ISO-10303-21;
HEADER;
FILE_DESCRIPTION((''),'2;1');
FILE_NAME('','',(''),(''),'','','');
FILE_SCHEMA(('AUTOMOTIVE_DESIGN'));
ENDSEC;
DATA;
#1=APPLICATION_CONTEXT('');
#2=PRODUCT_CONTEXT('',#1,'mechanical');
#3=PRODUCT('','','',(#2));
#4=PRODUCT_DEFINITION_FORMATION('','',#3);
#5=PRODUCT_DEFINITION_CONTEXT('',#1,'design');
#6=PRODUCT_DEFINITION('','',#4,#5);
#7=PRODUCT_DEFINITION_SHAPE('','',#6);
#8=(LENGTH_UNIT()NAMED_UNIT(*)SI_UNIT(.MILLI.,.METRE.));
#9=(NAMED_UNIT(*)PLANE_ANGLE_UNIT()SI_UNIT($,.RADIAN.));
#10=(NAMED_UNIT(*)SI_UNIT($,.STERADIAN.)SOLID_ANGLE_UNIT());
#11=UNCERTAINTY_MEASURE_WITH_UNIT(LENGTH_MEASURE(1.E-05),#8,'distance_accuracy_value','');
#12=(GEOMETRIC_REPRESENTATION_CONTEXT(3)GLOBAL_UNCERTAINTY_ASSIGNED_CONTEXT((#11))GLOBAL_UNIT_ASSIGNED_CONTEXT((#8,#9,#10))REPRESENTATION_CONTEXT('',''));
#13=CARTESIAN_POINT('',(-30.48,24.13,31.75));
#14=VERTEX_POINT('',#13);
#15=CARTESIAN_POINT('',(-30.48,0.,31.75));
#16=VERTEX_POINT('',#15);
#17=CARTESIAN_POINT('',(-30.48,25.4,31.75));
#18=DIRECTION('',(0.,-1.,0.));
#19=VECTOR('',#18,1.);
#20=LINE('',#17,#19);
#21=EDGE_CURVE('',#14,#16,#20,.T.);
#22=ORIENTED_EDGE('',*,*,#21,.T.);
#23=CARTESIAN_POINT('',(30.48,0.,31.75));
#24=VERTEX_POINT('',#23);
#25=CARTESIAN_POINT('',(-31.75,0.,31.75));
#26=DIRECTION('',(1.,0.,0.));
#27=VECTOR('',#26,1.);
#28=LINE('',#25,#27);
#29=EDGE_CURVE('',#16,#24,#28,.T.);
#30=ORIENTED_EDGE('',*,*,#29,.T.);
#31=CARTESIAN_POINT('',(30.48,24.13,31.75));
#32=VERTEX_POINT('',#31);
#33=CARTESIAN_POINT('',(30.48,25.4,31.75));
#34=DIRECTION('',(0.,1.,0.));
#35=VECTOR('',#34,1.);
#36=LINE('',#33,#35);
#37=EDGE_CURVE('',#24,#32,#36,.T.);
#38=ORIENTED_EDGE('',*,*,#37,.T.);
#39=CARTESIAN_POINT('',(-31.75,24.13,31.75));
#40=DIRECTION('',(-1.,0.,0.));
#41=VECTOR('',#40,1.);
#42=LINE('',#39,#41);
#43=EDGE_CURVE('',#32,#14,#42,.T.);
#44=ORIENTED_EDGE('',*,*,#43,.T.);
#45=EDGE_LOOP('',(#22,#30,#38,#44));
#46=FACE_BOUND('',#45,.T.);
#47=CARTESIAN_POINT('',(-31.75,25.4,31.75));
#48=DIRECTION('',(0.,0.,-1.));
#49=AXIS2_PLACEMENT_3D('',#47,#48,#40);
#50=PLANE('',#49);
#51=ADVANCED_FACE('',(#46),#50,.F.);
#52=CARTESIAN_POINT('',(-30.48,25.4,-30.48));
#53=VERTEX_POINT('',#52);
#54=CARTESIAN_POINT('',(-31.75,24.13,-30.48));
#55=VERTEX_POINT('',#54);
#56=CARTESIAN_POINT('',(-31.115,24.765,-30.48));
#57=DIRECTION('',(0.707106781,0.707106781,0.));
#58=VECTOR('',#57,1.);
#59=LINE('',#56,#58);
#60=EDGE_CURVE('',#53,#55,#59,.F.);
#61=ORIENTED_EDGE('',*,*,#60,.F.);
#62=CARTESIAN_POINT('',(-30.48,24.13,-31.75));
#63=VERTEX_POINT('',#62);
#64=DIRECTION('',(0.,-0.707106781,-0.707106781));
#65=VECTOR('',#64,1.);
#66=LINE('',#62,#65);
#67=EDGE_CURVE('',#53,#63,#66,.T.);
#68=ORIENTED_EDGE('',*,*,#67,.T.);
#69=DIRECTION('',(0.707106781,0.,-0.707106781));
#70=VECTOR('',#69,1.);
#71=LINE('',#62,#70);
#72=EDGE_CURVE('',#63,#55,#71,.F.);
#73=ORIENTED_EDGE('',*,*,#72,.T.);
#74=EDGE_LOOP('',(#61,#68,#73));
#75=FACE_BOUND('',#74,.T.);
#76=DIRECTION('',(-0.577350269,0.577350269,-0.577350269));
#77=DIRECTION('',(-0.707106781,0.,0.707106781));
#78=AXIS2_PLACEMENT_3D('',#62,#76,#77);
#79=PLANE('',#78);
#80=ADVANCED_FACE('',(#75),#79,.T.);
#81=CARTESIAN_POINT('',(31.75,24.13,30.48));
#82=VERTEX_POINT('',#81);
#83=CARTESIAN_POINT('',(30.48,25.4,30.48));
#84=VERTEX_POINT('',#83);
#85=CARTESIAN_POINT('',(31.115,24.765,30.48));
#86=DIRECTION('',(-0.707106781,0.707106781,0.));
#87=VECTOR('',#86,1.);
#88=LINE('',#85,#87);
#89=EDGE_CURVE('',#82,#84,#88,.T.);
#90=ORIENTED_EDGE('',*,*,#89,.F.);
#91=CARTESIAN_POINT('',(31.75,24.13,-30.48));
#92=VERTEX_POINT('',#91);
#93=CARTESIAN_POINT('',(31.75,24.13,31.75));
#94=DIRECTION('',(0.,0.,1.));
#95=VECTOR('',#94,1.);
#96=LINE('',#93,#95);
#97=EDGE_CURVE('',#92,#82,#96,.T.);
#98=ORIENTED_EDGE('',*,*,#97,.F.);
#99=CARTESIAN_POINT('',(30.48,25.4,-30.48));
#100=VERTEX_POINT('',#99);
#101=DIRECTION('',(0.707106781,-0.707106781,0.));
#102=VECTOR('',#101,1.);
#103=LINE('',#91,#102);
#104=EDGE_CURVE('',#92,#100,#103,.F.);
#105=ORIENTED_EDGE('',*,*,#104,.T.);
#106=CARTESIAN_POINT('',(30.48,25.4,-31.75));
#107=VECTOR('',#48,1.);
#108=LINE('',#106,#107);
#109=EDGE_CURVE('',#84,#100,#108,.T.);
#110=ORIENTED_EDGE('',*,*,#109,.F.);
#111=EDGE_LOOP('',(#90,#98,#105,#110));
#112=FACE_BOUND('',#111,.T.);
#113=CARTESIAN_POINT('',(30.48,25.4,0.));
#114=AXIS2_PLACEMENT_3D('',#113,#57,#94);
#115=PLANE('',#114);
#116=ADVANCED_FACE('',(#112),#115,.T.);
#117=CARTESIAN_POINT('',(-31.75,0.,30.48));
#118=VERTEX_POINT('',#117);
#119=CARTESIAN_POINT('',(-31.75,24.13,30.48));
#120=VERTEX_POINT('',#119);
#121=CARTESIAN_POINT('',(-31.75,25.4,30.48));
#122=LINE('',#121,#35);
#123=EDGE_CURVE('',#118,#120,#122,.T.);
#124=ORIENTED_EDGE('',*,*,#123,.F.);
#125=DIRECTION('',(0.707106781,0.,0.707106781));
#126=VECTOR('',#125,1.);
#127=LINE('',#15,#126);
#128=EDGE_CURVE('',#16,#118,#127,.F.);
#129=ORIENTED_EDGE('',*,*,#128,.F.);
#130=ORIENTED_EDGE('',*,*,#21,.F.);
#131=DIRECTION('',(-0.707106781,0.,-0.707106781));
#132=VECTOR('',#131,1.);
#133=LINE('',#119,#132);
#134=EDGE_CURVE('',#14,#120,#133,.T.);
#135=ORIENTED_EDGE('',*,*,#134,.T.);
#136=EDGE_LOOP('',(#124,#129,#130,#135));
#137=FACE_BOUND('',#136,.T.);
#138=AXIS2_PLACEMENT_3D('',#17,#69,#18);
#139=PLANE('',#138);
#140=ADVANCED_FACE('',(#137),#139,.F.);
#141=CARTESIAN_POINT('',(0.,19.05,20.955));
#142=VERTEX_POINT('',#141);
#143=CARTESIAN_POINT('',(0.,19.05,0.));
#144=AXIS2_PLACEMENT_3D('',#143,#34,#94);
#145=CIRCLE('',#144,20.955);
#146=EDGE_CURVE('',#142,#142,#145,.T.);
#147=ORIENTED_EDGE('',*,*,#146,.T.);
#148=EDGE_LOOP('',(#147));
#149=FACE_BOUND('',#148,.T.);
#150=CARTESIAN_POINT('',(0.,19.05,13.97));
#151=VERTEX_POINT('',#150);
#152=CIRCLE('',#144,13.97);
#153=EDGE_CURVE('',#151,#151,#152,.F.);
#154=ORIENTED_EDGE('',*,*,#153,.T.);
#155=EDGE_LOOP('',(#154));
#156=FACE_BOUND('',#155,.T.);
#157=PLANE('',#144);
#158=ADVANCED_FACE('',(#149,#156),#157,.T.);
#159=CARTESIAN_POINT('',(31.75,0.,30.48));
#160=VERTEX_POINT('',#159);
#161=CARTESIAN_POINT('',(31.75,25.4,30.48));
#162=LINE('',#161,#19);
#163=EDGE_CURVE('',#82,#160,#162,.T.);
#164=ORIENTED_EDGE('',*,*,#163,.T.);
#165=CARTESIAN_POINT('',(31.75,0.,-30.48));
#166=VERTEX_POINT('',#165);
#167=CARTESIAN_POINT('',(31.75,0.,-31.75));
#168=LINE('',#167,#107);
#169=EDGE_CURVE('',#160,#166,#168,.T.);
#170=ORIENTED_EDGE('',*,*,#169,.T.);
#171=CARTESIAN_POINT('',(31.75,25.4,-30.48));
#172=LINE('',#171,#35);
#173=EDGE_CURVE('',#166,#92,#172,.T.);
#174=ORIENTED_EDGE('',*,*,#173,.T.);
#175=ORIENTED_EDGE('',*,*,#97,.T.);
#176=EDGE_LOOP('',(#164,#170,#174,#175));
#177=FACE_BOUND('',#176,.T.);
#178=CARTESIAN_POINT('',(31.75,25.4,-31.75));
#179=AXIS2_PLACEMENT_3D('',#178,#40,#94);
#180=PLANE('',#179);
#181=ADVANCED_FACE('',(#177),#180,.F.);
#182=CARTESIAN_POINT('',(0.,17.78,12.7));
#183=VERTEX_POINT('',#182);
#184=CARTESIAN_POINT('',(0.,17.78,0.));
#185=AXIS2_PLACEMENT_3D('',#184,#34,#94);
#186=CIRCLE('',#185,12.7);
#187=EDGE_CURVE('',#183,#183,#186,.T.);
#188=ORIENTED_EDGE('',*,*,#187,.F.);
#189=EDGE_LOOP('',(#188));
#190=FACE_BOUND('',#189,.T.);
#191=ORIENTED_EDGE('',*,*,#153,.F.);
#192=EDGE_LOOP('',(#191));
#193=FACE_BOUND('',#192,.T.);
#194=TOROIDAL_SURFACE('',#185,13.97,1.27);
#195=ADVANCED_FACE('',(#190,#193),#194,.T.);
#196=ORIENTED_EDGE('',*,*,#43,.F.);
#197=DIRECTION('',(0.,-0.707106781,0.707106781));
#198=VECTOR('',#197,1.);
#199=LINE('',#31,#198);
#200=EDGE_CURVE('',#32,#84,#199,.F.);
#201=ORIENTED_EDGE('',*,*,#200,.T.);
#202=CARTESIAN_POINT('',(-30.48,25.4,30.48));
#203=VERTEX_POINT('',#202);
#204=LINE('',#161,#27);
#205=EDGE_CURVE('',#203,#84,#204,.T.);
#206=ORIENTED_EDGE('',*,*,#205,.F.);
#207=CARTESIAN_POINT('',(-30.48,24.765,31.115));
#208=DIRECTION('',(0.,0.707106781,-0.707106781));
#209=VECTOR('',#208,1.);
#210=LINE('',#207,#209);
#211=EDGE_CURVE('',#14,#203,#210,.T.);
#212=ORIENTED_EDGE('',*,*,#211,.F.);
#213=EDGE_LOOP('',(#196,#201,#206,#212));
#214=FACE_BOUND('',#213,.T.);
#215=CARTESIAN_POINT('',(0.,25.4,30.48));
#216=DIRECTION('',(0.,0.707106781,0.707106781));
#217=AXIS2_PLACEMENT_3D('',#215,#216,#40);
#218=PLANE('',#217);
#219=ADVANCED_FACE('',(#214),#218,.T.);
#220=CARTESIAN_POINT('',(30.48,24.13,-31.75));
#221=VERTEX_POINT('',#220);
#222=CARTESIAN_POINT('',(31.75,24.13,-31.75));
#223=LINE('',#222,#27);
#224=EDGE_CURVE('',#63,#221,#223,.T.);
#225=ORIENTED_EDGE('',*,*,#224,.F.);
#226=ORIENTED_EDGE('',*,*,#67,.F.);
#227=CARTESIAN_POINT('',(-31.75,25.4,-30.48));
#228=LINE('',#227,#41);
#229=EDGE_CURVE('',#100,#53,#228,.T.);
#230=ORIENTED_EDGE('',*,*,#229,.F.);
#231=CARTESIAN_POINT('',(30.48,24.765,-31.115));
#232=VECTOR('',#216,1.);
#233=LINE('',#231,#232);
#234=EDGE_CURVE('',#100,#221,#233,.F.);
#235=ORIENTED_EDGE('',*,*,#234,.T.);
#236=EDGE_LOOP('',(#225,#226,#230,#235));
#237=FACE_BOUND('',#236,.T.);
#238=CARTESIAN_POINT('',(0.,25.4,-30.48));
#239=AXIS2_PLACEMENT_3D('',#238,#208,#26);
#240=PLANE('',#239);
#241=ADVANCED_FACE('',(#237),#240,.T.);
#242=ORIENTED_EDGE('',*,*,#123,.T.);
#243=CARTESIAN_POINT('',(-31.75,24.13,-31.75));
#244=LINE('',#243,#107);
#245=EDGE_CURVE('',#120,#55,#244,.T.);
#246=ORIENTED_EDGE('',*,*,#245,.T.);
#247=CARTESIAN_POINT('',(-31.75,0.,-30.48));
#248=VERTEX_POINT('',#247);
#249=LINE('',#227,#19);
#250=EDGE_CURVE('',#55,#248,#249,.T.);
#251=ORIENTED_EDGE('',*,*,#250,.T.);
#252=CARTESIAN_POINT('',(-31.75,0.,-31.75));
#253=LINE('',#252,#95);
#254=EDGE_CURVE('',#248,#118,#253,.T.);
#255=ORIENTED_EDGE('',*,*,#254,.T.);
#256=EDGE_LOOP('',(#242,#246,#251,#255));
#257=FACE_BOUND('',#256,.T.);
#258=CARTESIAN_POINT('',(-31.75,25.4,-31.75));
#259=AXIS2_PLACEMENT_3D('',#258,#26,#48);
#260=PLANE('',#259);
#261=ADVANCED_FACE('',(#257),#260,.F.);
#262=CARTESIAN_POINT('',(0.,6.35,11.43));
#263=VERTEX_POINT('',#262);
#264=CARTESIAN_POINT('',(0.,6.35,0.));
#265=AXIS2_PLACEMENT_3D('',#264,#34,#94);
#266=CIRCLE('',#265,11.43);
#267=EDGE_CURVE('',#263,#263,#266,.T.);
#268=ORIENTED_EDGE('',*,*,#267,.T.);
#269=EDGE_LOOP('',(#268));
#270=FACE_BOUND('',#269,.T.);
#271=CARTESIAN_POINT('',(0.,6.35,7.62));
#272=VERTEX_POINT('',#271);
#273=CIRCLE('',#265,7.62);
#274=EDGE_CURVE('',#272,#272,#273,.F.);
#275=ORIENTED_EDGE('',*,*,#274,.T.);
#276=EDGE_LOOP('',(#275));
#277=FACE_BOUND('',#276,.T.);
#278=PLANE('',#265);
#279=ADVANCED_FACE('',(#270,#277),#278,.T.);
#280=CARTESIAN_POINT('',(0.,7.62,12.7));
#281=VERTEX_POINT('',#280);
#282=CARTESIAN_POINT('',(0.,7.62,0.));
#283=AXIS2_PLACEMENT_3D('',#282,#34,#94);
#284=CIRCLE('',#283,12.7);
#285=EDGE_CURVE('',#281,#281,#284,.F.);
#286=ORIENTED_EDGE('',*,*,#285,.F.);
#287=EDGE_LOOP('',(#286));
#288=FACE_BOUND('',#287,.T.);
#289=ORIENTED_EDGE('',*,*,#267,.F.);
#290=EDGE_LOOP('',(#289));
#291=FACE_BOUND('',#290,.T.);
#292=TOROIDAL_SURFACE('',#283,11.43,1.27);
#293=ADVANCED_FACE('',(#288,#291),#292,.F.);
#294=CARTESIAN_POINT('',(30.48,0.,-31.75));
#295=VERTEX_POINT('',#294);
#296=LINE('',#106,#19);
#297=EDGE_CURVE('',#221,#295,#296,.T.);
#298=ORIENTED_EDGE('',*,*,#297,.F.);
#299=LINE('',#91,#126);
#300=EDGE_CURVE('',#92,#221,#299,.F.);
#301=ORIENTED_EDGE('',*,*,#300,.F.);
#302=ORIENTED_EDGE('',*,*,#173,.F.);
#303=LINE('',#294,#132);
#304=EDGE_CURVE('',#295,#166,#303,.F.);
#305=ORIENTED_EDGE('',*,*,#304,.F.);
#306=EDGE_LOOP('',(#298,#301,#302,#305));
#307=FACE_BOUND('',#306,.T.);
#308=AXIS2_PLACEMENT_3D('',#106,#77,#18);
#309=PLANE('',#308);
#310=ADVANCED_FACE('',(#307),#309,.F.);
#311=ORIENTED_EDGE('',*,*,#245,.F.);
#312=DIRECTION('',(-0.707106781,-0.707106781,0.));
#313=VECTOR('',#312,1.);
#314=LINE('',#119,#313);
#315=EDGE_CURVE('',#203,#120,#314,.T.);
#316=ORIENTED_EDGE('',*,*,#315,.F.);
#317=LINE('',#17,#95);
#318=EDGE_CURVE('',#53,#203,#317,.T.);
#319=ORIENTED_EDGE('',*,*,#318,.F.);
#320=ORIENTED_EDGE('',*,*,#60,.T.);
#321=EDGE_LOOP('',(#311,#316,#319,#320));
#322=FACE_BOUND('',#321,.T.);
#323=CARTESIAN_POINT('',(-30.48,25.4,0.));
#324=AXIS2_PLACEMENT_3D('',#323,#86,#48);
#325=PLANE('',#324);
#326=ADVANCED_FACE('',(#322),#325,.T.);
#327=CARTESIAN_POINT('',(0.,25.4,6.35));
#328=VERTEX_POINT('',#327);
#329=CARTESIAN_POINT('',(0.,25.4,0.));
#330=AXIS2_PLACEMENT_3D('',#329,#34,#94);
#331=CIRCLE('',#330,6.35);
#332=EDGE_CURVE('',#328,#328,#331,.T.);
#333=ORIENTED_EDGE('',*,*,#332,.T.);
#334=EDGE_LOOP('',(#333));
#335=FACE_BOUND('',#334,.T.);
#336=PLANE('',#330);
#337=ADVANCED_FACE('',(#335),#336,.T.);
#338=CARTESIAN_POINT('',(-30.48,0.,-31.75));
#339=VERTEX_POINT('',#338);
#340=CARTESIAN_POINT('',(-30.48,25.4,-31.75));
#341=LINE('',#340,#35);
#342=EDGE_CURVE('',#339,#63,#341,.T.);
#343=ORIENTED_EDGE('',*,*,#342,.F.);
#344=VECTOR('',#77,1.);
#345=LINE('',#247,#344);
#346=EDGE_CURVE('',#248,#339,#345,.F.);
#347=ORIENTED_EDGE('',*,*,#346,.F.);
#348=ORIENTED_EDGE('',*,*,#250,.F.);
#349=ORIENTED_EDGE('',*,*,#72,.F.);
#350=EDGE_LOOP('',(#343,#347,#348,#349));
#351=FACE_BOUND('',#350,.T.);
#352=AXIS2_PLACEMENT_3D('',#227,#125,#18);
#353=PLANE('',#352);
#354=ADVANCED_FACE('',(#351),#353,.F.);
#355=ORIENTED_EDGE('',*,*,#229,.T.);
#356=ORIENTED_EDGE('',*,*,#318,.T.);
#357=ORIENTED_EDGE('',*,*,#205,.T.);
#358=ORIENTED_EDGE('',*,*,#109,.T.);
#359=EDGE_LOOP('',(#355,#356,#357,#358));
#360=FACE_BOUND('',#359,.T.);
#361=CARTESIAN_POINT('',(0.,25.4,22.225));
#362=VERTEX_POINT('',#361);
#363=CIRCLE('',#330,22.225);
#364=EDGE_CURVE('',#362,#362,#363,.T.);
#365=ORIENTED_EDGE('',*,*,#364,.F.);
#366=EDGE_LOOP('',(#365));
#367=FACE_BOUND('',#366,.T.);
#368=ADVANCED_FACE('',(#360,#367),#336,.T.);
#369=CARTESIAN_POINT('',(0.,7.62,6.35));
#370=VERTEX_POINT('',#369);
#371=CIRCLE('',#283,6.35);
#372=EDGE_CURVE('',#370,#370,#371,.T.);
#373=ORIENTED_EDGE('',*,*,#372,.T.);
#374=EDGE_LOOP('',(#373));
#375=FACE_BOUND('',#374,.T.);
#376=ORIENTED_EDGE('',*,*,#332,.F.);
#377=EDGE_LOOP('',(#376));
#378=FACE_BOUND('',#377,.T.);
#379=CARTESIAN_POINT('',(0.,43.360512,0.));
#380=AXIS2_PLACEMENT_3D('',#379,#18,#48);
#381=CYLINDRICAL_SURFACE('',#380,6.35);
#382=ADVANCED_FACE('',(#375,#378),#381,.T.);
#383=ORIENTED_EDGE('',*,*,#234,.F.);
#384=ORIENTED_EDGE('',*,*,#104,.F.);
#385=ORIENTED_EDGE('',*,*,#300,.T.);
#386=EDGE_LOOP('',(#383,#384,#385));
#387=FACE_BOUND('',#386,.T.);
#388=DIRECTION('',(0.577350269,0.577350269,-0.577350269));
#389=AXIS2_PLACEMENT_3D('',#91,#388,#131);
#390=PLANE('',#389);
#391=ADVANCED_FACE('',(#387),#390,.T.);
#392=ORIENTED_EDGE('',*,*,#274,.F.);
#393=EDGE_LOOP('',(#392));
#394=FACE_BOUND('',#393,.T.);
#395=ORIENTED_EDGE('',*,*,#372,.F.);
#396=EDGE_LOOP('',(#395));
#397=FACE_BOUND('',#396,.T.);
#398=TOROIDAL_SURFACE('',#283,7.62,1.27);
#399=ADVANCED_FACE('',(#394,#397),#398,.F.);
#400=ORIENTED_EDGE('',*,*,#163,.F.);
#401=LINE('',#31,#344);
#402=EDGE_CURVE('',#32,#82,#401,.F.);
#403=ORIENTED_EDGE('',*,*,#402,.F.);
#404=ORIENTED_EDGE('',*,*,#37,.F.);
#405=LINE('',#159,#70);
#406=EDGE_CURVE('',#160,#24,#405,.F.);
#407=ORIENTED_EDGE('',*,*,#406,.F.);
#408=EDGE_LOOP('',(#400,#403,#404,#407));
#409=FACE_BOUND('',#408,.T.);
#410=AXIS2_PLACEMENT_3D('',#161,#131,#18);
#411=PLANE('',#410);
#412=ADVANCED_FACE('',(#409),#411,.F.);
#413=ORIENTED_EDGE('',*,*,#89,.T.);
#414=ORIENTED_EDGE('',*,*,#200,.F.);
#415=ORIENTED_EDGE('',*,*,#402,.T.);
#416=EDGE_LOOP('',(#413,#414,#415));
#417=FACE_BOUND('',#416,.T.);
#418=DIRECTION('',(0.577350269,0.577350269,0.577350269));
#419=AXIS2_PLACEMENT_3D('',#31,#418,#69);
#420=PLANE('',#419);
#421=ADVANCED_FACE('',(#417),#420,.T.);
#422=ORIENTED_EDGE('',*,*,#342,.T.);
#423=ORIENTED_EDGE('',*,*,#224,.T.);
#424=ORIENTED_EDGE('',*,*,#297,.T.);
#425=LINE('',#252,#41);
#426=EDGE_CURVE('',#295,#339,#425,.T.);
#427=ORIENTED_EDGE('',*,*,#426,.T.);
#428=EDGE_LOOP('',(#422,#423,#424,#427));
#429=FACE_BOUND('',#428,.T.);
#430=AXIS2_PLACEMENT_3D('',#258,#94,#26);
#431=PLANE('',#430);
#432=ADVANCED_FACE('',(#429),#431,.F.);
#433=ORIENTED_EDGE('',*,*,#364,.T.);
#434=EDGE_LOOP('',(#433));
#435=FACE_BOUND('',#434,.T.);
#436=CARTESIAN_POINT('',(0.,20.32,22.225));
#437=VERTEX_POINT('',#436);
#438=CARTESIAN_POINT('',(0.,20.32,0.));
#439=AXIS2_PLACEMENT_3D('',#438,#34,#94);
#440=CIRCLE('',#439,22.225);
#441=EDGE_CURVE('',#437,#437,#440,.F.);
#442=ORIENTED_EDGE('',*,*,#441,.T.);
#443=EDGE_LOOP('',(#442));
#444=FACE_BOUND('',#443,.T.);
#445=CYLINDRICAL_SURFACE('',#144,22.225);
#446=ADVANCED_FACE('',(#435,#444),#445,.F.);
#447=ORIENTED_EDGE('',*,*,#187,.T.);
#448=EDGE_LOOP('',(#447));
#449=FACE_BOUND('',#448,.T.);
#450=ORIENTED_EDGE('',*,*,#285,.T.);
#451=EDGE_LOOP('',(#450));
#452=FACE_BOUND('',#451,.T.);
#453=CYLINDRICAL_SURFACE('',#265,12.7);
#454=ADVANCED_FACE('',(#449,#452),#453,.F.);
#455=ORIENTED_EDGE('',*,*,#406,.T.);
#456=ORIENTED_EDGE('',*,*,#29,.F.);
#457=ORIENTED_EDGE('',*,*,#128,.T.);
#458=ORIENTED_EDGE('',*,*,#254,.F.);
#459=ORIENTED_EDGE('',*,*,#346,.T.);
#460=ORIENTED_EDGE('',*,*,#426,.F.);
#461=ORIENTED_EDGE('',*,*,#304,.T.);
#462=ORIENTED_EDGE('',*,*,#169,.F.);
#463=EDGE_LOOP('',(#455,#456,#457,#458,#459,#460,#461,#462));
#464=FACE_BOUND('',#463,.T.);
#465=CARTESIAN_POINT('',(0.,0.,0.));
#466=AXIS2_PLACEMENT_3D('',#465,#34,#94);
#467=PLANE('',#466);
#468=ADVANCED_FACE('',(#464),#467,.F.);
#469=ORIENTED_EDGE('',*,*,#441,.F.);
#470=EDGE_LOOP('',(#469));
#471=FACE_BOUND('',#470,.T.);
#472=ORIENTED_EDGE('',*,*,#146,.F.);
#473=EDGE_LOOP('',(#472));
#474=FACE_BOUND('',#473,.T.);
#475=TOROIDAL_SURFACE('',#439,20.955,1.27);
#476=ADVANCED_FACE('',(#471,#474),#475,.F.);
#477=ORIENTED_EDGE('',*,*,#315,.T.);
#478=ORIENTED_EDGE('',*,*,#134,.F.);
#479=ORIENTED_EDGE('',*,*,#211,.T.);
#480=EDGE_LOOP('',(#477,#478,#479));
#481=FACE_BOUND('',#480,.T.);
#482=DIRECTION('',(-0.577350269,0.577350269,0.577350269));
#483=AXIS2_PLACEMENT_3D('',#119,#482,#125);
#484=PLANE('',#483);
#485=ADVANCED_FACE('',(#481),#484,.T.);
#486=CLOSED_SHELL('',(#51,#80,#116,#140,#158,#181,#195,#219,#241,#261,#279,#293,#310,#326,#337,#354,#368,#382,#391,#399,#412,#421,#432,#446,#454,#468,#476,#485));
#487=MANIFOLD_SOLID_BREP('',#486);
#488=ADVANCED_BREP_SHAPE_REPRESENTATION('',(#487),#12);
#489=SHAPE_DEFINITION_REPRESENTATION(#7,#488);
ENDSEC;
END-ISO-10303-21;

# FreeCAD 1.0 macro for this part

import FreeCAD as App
import Part
import Sketcher
Q = App.Units.Quantity


def edges_at(feature, points):
    """Names of the edges that pass closest to the given points."""
    edges = feature.Shape.Edges
    near = lambda p: min(range(len(edges)), key=lambda i: edges[i].distToShape(Part.Vertex(*p))[0])
    return sorted({f"Edge{near(p) + 1}" for p in points})

doc = App.newDocument("Part")
body = doc.addObject("PartDesign::Body", "Body")

sketch1 = body.newObject("Sketcher::SketchObject", "Sketch")
sketch1.AttachmentSupport = (doc.getObject("XZ_Plane"), [""])
sketch1.MapMode = "FlatFace"
sketch1.addGeometry([
    Part.LineSegment(App.Vector(-31.75, -31.75, 0), App.Vector(-31.75, 31.75, 0)),
    Part.LineSegment(App.Vector(-31.75, 31.75, 0), App.Vector(31.75, 31.75, 0)),
    Part.LineSegment(App.Vector(31.75, 31.75, 0), App.Vector(31.75, -31.75, 0)),
    Part.LineSegment(App.Vector(31.75, -31.75, 0), App.Vector(-31.75, -31.75, 0)),
], False)
sketch1.addConstraint([
    Sketcher.Constraint("Coincident", 0, 2, 1, 1),
    Sketcher.Constraint("Coincident", 1, 2, 2, 1),
    Sketcher.Constraint("Coincident", 2, 2, 3, 1),
    Sketcher.Constraint("Coincident", 3, 2, 0, 1),
    Sketcher.Constraint("Vertical", 0),
    Sketcher.Constraint("Horizontal", 1),
    Sketcher.Constraint("Vertical", 2),
    Sketcher.Constraint("Horizontal", 3),
    Sketcher.Constraint("Symmetric", 0, 2, 2, 2, -1, 1),
    Sketcher.Constraint("Equal", 3, 0),
    Sketcher.Constraint("DistanceX", 1, 1, 1, 2, Q("2.5 in")),
])
pad1 = body.newObject("PartDesign::Pad", "Pad")
pad1.Profile = sketch1
pad1.Length = Q("1 in")
pad1.Reversed = True

sketch2 = body.newObject("Sketcher::SketchObject", "Sketch001")
sketch2.AttachmentSupport = (doc.getObject("XZ_Plane"), [""])
sketch2.MapMode = "FlatFace"
sketch2.AttachmentOffset = App.Placement(App.Vector(0, 0, -1 * 25.4), App.Rotation())
sketch2.addGeometry(Part.Circle(App.Vector(0, 0, 0), App.Vector(0, 0, 1), 22.225), False)
sketch2.addConstraint([
    Sketcher.Constraint("Coincident", 0, 3, -1, 1),
    Sketcher.Constraint("Diameter", 0, Q("1.75 in")),
])
pocket1 = body.newObject("PartDesign::Pocket", "Pocket")
pocket1.Profile = sketch2
pocket1.Length = Q("0.25 in")
pocket1.Reversed = True

sketch3 = body.newObject("Sketcher::SketchObject", "Sketch002")
sketch3.AttachmentSupport = (doc.getObject("XZ_Plane"), [""])
sketch3.MapMode = "FlatFace"
sketch3.AttachmentOffset = App.Placement(App.Vector(0, 0, -0.75 * 25.4), App.Rotation())
sketch3.addGeometry(Part.Circle(App.Vector(0, 0, 0), App.Vector(0, 0, 1), 12.7), False)
sketch3.addConstraint([
    Sketcher.Constraint("Coincident", 0, 3, -1, 1),
    Sketcher.Constraint("Diameter", 0, Q("1 in")),
])
pocket2 = body.newObject("PartDesign::Pocket", "Pocket001")
pocket2.Profile = sketch3
pocket2.Length = Q("0.5 in")
pocket2.Reversed = True

sketch4 = body.newObject("Sketcher::SketchObject", "Sketch003")
sketch4.AttachmentSupport = (doc.getObject("XZ_Plane"), [""])
sketch4.MapMode = "FlatFace"
sketch4.AttachmentOffset = App.Placement(App.Vector(0, 0, -0.25 * 25.4), App.Rotation())
sketch4.addGeometry(Part.Circle(App.Vector(0, 0, 0), App.Vector(0, 0, 1), 6.35), False)
sketch4.addConstraint([
    Sketcher.Constraint("Coincident", 0, 3, -1, 1),
    Sketcher.Constraint("Diameter", 0, Q("0.5 in")),
])
pad2 = body.newObject("PartDesign::Pad", "Pad001")
pad2.Profile = sketch4
pad2.Length = Q("0.75 in")
pad2.Reversed = True
doc.recompute()

fillet = body.newObject("PartDesign::Fillet", "Fillet")
fillet.Base = (pad2, edges_at(pad2, [
    (0, 19.05, -22.225),
    (0, 6.35, -12.7),
    (0, 19.05, -12.7),
    (0, 6.35, -6.35),
]))
fillet.Radius = Q("0.05 in")
doc.recompute()

chamfer = body.newObject("PartDesign::Chamfer", "Chamfer")
chamfer.Base = (fillet, edges_at(fillet, [
    (-31.75, 25.4, 0),
    (0, 25.4, 31.75),
    (31.75, 25.4, 0),
    (0, 25.4, -31.75),
    (31.75, 12.7, 31.75),
    (-31.75, 12.7, 31.75),
    (-31.75, 12.7, -31.75),
    (31.75, 12.7, -31.75),
]))
chamfer.Size = Q("0.05 in")

doc.recompute()
